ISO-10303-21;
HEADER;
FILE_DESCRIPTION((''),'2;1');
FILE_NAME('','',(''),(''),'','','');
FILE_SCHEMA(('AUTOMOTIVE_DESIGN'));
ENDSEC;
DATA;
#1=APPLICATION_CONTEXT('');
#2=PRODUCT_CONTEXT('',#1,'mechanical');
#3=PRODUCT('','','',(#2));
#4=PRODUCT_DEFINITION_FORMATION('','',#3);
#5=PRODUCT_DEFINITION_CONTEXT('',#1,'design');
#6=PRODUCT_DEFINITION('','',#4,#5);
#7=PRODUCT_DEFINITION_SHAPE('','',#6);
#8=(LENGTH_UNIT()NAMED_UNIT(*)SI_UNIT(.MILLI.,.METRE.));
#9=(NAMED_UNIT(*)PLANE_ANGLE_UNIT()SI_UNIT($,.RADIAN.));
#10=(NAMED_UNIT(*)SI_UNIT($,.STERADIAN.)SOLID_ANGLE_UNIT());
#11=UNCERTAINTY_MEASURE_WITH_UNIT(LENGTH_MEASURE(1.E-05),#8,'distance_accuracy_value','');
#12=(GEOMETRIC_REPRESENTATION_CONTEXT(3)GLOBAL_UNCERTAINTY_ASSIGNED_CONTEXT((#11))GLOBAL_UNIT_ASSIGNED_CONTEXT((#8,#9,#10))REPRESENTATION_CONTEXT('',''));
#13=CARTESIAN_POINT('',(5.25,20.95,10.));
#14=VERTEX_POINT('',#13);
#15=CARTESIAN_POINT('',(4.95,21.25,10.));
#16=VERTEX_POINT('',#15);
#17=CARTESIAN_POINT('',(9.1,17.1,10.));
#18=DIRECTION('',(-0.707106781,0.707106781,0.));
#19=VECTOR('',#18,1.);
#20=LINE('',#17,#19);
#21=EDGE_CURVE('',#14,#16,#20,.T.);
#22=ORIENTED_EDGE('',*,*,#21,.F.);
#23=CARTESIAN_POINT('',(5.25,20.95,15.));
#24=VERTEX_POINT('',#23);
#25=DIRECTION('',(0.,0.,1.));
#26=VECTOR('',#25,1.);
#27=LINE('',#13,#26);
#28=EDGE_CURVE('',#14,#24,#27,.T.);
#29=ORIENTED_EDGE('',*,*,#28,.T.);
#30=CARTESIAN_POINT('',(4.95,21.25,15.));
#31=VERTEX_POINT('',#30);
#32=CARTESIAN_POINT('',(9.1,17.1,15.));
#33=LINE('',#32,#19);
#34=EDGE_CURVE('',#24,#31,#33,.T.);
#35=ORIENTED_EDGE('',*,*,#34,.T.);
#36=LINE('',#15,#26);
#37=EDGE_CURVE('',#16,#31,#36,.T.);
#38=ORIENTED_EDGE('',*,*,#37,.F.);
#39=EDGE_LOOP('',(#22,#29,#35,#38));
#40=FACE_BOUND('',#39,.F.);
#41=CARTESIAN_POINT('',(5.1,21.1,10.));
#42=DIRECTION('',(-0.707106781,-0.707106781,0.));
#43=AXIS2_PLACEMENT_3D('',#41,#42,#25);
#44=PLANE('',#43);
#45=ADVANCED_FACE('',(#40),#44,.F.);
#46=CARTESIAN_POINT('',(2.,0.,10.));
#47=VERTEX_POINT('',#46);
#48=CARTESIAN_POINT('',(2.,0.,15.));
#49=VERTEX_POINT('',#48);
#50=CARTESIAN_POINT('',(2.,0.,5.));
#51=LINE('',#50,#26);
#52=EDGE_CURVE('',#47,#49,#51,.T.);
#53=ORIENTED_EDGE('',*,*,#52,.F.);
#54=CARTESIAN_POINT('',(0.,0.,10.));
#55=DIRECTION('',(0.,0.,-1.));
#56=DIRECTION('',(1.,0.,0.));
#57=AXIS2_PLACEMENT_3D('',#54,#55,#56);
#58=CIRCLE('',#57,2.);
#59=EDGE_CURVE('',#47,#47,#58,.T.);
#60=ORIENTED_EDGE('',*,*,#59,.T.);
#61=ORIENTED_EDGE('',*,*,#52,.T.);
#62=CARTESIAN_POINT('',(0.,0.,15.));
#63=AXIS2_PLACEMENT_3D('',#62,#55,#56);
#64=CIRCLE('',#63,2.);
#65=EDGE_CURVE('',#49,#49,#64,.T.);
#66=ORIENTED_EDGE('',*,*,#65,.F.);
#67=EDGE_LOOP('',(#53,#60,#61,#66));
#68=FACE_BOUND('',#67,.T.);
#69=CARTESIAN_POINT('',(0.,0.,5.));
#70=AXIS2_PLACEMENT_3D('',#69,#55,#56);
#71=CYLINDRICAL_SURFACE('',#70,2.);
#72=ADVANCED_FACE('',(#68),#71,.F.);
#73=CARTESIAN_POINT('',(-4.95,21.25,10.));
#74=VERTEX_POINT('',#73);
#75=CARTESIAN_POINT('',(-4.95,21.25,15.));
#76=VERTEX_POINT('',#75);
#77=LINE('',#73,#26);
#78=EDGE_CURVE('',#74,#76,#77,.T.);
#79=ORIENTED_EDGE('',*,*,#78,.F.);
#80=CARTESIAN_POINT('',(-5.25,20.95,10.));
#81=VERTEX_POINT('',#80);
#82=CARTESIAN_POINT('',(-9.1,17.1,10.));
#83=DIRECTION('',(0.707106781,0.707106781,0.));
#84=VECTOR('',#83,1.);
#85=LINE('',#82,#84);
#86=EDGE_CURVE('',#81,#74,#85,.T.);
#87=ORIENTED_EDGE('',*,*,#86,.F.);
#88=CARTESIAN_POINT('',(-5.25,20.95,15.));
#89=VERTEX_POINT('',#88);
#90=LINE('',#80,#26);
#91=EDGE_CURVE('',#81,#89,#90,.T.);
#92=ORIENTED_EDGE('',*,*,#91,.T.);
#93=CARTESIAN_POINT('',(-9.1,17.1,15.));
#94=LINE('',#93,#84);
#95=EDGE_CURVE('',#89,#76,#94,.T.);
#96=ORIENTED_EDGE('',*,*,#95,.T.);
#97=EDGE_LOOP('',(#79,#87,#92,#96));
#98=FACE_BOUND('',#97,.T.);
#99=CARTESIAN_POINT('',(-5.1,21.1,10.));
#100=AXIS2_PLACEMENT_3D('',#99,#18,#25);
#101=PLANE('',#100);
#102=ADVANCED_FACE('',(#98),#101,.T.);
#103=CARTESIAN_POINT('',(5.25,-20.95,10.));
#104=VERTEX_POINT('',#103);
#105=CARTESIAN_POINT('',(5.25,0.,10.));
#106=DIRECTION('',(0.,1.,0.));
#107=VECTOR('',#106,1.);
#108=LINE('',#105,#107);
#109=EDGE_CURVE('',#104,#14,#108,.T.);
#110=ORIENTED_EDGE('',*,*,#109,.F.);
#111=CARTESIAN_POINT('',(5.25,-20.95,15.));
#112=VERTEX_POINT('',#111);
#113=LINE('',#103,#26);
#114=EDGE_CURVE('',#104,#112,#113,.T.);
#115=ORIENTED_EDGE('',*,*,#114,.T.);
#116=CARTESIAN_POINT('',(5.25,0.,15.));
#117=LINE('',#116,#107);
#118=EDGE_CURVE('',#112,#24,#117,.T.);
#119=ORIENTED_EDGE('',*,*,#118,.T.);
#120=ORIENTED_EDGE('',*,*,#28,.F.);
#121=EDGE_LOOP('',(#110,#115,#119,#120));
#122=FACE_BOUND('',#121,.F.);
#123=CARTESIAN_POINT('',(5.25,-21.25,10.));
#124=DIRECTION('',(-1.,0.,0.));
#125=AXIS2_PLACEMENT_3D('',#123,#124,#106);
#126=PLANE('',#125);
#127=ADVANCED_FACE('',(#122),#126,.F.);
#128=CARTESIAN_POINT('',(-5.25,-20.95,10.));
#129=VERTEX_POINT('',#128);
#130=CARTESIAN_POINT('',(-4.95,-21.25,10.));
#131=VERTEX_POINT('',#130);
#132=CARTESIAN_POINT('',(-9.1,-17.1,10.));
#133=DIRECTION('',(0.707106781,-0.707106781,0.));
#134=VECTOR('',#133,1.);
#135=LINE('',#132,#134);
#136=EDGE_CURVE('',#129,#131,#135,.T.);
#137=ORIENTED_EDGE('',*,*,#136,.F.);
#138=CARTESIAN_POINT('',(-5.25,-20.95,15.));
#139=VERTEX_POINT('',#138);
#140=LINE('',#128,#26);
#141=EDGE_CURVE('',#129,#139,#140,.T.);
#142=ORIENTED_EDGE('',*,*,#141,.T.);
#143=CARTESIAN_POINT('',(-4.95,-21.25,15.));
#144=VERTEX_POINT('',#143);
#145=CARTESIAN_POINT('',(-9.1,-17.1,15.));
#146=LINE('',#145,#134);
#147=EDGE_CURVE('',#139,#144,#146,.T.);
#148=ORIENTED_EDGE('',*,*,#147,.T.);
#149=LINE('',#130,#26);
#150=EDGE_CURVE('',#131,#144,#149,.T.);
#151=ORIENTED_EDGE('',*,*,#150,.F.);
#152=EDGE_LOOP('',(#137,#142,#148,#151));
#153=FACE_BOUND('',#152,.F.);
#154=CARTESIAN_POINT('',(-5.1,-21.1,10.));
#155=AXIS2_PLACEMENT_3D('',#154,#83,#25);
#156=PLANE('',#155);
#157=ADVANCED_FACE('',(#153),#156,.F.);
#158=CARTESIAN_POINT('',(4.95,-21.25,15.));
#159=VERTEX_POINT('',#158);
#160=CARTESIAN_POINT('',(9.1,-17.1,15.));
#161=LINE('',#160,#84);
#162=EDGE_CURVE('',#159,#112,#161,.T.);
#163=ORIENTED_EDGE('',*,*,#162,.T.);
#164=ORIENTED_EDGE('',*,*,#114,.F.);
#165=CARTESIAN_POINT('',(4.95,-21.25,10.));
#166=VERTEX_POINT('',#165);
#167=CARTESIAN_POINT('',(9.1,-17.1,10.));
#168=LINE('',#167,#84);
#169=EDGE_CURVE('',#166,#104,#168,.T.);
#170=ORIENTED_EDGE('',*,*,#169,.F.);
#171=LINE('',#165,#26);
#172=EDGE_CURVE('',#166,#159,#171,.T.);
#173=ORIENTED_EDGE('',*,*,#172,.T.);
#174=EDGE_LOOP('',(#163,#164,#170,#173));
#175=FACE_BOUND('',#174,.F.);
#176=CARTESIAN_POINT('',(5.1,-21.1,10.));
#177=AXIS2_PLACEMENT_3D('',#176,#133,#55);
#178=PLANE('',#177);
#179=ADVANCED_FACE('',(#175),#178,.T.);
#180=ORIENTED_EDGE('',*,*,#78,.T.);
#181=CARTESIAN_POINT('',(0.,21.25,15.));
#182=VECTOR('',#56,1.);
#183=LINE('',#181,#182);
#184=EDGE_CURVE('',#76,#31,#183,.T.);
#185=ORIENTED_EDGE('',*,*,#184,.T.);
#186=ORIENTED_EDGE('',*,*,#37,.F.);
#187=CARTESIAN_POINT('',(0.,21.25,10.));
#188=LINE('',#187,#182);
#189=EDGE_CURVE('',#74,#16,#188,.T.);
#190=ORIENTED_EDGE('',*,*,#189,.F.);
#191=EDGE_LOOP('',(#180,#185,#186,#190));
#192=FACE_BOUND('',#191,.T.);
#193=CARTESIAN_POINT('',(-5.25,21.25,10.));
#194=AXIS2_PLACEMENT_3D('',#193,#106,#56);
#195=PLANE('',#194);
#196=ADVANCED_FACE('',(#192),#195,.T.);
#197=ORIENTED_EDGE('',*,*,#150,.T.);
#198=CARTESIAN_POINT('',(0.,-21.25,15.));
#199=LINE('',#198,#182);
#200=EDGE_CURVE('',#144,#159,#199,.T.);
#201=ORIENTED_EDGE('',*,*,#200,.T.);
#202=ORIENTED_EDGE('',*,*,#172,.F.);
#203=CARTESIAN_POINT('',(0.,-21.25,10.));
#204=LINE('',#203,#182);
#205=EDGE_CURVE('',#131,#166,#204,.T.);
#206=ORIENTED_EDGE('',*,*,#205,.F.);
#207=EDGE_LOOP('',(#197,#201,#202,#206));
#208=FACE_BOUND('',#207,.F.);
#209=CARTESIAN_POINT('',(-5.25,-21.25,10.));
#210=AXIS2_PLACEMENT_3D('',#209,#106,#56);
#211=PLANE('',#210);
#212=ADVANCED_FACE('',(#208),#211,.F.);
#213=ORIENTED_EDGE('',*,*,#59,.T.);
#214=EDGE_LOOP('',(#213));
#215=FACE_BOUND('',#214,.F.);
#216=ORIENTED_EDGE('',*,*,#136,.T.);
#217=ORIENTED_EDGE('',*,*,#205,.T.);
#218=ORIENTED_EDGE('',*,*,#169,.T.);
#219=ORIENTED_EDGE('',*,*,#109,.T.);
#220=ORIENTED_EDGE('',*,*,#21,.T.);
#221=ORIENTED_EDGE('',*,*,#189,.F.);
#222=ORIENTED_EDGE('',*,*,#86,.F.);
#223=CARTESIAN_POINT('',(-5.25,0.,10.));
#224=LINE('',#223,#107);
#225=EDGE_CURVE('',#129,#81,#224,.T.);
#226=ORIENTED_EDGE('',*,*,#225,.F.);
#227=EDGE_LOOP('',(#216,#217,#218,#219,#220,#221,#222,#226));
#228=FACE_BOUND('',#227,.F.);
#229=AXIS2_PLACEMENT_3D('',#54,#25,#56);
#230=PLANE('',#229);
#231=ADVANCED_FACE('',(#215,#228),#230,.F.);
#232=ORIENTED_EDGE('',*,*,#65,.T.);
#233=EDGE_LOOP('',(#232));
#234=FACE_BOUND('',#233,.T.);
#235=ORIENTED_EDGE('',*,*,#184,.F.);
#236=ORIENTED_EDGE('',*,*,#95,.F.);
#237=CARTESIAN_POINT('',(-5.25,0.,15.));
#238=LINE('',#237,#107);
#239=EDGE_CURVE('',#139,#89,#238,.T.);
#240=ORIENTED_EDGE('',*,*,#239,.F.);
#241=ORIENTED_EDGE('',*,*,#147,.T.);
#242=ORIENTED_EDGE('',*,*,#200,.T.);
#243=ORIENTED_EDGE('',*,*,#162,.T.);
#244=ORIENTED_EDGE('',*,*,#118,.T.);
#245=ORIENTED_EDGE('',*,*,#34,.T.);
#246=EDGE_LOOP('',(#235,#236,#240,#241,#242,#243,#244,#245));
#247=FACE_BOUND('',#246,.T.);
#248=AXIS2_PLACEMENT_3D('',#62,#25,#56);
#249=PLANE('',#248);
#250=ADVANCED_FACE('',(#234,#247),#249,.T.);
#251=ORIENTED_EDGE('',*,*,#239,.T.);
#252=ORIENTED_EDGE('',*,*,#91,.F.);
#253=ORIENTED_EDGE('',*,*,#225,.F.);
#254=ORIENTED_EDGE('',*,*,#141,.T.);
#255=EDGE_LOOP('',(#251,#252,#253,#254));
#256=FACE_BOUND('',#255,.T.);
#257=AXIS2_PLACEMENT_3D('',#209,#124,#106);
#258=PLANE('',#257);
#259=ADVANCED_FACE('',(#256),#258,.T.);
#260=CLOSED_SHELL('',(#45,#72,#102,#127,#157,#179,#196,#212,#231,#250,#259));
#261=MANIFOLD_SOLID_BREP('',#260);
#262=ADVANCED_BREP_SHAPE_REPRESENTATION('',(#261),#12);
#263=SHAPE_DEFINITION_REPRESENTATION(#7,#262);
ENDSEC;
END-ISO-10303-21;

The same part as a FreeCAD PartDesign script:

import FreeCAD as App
import Part
import Sketcher

V = App.Vector


def edges_at(feature, points):
    """Names of the edges that pass closest to the given points."""
    edges = feature.Shape.Edges
    near = lambda p: min(range(len(edges)), key=lambda i: edges[i].distToShape(Part.Vertex(*p))[0])
    return sorted({f"Edge{near(p) + 1}" for p in points})

doc = App.newDocument("Part")
body = doc.addObject("PartDesign::Body", "Body")

sketch1 = body.newObject("Sketcher::SketchObject", "Sketch")
sketch1.AttachmentSupport = (doc.getObject("XY_Plane"), [""])
sketch1.MapMode = "FlatFace"
sketch1.AttachmentOffset = App.Placement(V(0, 0, 5), App.Rotation())
sketch1.addGeometry(Part.Circle(V(0, 0, 0), V(0, 0, 1), 2), False)
sketch1.addConstraint([
    Sketcher.Constraint("Coincident", 0, 3, -1, 1),
    Sketcher.Constraint("Diameter", 0, 4.0),
])
pad1 = body.newObject("PartDesign::Pad", "Pad")
pad1.Profile = sketch1
pad1.Length = 12
body2 = doc.addObject("PartDesign::Body", "Body001")

sketch2 = body2.newObject("Sketcher::SketchObject", "Sketch001")
sketch2.AttachmentSupport = (doc.getObject("XY_Plane001"), [""])
sketch2.MapMode = "FlatFace"
sketch2.addGeometry([
    Part.LineSegment(V(-5, 21, 0), V(-5, -21, 0)),
    Part.LineSegment(V(-5, -21, 0), V(5, -21, 0)),
    Part.LineSegment(V(5, -21, 0), V(5, 21, 0)),
    Part.LineSegment(V(5, 21, 0), V(-5, 21, 0)),
], False)
sketch2.addConstraint([
    Sketcher.Constraint("Coincident", 0, 2, 1, 1),
    Sketcher.Constraint("Coincident", 1, 2, 2, 1),
    Sketcher.Constraint("Coincident", 2, 2, 3, 1),
    Sketcher.Constraint("Coincident", 3, 2, 0, 1),
    Sketcher.Constraint("Vertical", 0),
    Sketcher.Constraint("Horizontal", 1),
    Sketcher.Constraint("Vertical", 2),
    Sketcher.Constraint("Horizontal", 3),
    Sketcher.Constraint("Symmetric", 0, 2, 2, 2, -1, 1),
    Sketcher.Constraint("DistanceX", 1, 1, 1, 2, 10.5),
    Sketcher.Constraint("DistanceY", 0, 2, 0, 1, 42.5),
])
pad2 = body2.newObject("PartDesign::Pad", "Pad001")
pad2.Profile = sketch2
pad2.Length = 5
doc.recompute()

chamfer = body2.newObject("PartDesign::Chamfer", "Chamfer")
chamfer.Base = (pad2, edges_at(pad2, [
    (-5.25, -21.25, 2.5),
    (-5.25, 21.25, 2.5),
    (5.25, -21.25, 2.5),
    (5.25, 21.25, 2.5),
]))
chamfer.Size = 0.3
body3 = doc.addObject("PartDesign::Body", "Body002")
doc.recompute()

body2.Placement = App.Placement(V(0, 0, 10), App.Rotation(V(0, 0, 1), 0))
boolean = body3.newObject("PartDesign::Boolean", "Boolean")
boolean.Type = "Fuse"
boolean.addObjects([body2])
doc.recompute()

boolean2 = body3.newObject("PartDesign::Boolean", "Boolean001")
boolean2.Type = "Cut"
boolean2.addObjects([body])

doc.recompute()
